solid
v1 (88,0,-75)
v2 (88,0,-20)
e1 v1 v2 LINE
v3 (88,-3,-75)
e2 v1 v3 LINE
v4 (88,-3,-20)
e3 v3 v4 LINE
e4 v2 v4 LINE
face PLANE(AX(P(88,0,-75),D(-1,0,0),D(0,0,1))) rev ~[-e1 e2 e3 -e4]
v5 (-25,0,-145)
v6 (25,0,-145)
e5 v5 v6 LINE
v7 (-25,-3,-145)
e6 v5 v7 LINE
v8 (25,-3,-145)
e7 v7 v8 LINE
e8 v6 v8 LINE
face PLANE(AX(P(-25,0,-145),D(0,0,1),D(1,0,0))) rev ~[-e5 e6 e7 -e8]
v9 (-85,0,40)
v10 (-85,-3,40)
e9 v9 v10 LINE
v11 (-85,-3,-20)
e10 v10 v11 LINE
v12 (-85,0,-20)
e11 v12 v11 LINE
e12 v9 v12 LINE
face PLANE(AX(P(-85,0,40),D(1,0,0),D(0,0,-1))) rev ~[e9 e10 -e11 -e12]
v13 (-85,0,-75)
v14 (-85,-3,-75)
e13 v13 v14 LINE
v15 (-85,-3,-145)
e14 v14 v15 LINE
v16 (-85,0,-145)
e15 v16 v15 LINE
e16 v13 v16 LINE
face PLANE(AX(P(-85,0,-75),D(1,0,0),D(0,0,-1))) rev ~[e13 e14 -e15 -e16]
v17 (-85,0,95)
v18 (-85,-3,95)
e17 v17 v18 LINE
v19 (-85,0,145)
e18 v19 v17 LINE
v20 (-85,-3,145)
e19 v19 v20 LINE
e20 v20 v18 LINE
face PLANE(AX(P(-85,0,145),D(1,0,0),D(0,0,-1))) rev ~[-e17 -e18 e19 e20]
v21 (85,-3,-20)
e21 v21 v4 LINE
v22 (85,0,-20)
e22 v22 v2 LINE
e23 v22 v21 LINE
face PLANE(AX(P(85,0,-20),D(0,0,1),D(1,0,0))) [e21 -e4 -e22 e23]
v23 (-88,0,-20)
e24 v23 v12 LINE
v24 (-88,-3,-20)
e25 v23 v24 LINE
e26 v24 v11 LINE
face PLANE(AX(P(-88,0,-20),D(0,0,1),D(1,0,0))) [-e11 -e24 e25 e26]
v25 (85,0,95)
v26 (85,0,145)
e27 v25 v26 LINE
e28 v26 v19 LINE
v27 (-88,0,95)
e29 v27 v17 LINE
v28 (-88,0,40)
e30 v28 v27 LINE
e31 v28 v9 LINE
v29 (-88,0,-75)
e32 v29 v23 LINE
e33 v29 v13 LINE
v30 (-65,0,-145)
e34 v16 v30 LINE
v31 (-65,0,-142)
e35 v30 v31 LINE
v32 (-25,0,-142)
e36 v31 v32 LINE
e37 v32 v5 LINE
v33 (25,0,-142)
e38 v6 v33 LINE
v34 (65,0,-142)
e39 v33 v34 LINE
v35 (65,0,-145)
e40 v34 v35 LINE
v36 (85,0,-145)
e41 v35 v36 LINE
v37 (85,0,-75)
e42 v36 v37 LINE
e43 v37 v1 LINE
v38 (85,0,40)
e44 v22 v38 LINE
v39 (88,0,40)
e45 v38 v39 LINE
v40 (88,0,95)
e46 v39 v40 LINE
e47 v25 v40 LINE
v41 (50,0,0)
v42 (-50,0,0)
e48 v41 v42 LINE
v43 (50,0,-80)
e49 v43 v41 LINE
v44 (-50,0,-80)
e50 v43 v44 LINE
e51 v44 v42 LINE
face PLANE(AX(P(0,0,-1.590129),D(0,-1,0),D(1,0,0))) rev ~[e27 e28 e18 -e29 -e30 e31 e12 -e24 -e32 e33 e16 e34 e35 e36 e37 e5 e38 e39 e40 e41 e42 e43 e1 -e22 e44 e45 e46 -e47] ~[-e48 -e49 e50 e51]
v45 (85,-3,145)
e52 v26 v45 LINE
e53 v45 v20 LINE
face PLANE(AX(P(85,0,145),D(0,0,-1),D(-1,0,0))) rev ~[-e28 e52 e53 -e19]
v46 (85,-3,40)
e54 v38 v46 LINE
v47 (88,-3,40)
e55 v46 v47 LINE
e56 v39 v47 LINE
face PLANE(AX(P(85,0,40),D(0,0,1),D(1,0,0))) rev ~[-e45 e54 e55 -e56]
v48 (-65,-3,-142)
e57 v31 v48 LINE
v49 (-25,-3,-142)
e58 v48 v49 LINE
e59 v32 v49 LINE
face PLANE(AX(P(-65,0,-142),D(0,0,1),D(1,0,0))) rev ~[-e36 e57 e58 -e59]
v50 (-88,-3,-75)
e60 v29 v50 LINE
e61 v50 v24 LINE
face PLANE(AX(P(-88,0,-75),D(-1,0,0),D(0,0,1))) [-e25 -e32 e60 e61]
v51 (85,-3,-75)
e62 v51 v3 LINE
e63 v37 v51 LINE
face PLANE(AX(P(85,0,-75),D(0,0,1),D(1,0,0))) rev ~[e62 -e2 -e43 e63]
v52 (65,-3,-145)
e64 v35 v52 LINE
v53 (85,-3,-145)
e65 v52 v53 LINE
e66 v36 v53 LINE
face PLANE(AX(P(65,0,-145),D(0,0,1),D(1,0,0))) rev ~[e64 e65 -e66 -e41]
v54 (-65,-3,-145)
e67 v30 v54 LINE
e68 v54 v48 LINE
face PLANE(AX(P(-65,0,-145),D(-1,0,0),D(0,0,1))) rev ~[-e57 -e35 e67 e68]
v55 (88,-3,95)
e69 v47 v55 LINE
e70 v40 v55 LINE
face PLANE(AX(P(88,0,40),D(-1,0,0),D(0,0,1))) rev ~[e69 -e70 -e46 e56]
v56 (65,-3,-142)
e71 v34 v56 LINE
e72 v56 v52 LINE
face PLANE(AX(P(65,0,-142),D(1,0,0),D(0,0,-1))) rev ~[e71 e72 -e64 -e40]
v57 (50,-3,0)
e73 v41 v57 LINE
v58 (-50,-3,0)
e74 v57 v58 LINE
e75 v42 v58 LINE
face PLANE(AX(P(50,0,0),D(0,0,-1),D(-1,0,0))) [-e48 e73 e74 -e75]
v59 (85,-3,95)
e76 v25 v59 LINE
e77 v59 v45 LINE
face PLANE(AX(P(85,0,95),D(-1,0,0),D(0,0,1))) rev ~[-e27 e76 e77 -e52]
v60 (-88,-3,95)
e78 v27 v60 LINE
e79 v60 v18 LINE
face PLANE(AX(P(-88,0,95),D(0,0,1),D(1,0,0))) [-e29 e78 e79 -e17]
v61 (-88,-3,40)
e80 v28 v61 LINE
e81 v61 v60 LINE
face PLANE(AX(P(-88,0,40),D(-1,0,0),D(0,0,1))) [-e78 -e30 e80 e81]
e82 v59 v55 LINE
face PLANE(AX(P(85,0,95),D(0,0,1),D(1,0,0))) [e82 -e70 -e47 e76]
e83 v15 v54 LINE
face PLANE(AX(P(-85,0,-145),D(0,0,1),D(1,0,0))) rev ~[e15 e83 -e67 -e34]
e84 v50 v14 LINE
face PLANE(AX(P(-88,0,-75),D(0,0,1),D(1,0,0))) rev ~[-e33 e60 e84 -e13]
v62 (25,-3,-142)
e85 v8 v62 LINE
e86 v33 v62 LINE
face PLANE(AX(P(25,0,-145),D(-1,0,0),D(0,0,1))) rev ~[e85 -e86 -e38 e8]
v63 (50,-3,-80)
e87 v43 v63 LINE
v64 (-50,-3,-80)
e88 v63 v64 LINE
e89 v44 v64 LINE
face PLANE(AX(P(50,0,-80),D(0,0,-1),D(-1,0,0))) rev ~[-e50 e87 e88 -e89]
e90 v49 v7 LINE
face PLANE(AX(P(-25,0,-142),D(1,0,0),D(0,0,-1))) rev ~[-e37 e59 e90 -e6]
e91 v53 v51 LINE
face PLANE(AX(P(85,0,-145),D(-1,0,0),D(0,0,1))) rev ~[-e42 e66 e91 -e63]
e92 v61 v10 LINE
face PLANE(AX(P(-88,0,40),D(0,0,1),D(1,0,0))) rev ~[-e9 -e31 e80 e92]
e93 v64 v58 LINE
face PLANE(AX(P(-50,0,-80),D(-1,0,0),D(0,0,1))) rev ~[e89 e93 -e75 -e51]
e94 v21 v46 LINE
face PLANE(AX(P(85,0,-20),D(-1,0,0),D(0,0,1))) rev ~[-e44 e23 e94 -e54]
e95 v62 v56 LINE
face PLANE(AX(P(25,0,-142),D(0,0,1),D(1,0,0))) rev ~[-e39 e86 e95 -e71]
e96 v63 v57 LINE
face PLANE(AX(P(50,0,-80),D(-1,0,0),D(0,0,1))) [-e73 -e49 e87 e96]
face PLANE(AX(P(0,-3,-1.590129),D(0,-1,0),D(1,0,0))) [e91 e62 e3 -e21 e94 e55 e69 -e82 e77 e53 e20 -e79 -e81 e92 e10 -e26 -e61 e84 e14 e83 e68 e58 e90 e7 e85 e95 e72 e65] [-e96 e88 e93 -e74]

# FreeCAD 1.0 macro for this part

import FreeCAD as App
import Part
import Sketcher
from FreeCAD import Vector
Q = App.Units.Quantity

doc = App.newDocument("Part")
body = doc.addObject("PartDesign::Body", "Body")

sketch1 = body.newObject("Sketcher::SketchObject", "Sketch")
sketch1.AttachmentSupport = (doc.getObject("XZ_Plane"), [""])
sketch1.MapMode = "FlatFace"
sketch1.addGeometry([
    Part.LineSegment(Vector(85, 145, 0), Vector(-85, 145, 0)),
    Part.LineSegment(Vector(-85, 145, 0), Vector(-85, 95, 0)),
    Part.LineSegment(Vector(-85, 95, 0), Vector(-88, 95, 0)),
    Part.LineSegment(Vector(-88, 95, 0), Vector(-88, 40, 0)),
    Part.LineSegment(Vector(-88, 40, 0), Vector(-85, 40, 0)),
    Part.LineSegment(Vector(-85, 40, 0), Vector(-85, -20, 0)),
    Part.LineSegment(Vector(-85, -20, 0), Vector(-88, -20, 0)),
    Part.LineSegment(Vector(-88, -20, 0), Vector(-88, -75, 0)),
    Part.LineSegment(Vector(-88, -75, 0), Vector(-85, -75, 0)),
    Part.LineSegment(Vector(-85, -75, 0), Vector(-85, -145, 0)),
    Part.LineSegment(Vector(-85, -145, 0), Vector(-65, -145, 0)),
    Part.LineSegment(Vector(-65, -145, 0), Vector(-65, -142, 0)),
    Part.LineSegment(Vector(-65, -142, 0), Vector(-25, -142, 0)),
    Part.LineSegment(Vector(-25, -142, 0), Vector(-25, -145, 0)),
    Part.LineSegment(Vector(-25, -145, 0), Vector(25, -145, 0)),
    Part.LineSegment(Vector(25, -145, 0), Vector(25, -142, 0)),
    Part.LineSegment(Vector(25, -142, 0), Vector(65, -142, 0)),
    Part.LineSegment(Vector(65, -142, 0), Vector(65, -145, 0)),
    Part.LineSegment(Vector(65, -145, 0), Vector(85, -145, 0)),
    Part.LineSegment(Vector(85, -145, 0), Vector(85, -75, 0)),
    Part.LineSegment(Vector(85, -75, 0), Vector(88, -75, 0)),
    Part.LineSegment(Vector(88, -75, 0), Vector(88, -20, 0)),
    Part.LineSegment(Vector(88, -20, 0), Vector(85, -20, 0)),
    Part.LineSegment(Vector(85, -20, 0), Vector(85, 40, 0)),
    Part.LineSegment(Vector(85, 40, 0), Vector(88, 40, 0)),
    Part.LineSegment(Vector(88, 40, 0), Vector(88, 95, 0)),
    Part.LineSegment(Vector(88, 95, 0), Vector(85, 95, 0)),
    Part.LineSegment(Vector(85, 95, 0), Vector(85, 145, 0)),
], False)
sketch1.addConstraint([
    Sketcher.Constraint("Coincident", 0, 2, 1, 1),
    Sketcher.Constraint("Coincident", 1, 2, 2, 1),
    Sketcher.Constraint("Coincident", 2, 2, 3, 1),
    Sketcher.Constraint("Coincident", 3, 2, 4, 1),
    Sketcher.Constraint("Coincident", 4, 2, 5, 1),
    Sketcher.Constraint("Coincident", 5, 2, 6, 1),
    Sketcher.Constraint("Coincident", 6, 2, 7, 1),
    Sketcher.Constraint("Coincident", 7, 2, 8, 1),
    Sketcher.Constraint("Coincident", 8, 2, 9, 1),
    Sketcher.Constraint("Coincident", 9, 2, 10, 1),
    Sketcher.Constraint("Coincident", 10, 2, 11, 1),
    Sketcher.Constraint("Coincident", 11, 2, 12, 1),
    Sketcher.Constraint("Coincident", 12, 2, 13, 1),
    Sketcher.Constraint("Coincident", 13, 2, 14, 1),
    Sketcher.Constraint("Coincident", 14, 2, 15, 1),
    Sketcher.Constraint("Coincident", 15, 2, 16, 1),
    Sketcher.Constraint("Coincident", 16, 2, 17, 1),
    Sketcher.Constraint("Coincident", 17, 2, 18, 1),
    Sketcher.Constraint("Coincident", 18, 2, 19, 1),
    Sketcher.Constraint("Coincident", 19, 2, 20, 1),
    Sketcher.Constraint("Coincident", 20, 2, 21, 1),
    Sketcher.Constraint("Coincident", 21, 2, 22, 1),
    Sketcher.Constraint("Coincident", 22, 2, 23, 1),
    Sketcher.Constraint("Coincident", 23, 2, 24, 1),
    Sketcher.Constraint("Coincident", 24, 2, 25, 1),
    Sketcher.Constraint("Coincident", 25, 2, 26, 1),
    Sketcher.Constraint("Coincident", 26, 2, 27, 1),
    Sketcher.Constraint("Coincident", 27, 2, 0, 1),
    Sketcher.Constraint("Horizontal", 0),
    Sketcher.Constraint("Vertical", 1),
    Sketcher.Constraint("Horizontal", 2),
    Sketcher.Constraint("Vertical", 3),
    Sketcher.Constraint("Horizontal", 4),
    Sketcher.Constraint("Vertical", 5),
    Sketcher.Constraint("Horizontal", 6),
    Sketcher.Constraint("Vertical", 7),
    Sketcher.Constraint("Horizontal", 8),
    Sketcher.Constraint("Vertical", 9),
    Sketcher.Constraint("Horizontal", 10),
    Sketcher.Constraint("Vertical", 11),
    Sketcher.Constraint("Horizontal", 12),
    Sketcher.Constraint("Vertical", 13),
    Sketcher.Constraint("Horizontal", 14),
    Sketcher.Constraint("Vertical", 15),
    Sketcher.Constraint("Horizontal", 16),
    Sketcher.Constraint("Vertical", 17),
    Sketcher.Constraint("Horizontal", 18),
    Sketcher.Constraint("Vertical", 19),
    Sketcher.Constraint("Horizontal", 20),
    Sketcher.Constraint("Vertical", 21),
    Sketcher.Constraint("Horizontal", 22),
    Sketcher.Constraint("Vertical", 23),
    Sketcher.Constraint("Horizontal", 24),
    Sketcher.Constraint("Vertical", 25),
    Sketcher.Constraint("Horizontal", 26),
    Sketcher.Constraint("Vertical", 27),
    Sketcher.Constraint("Symmetric", 0, 2, 18, 2, -1, 1),
    Sketcher.Constraint("Symmetric", 9, 2, 27, 2, -1, 1),
    Sketcher.Constraint("Symmetric", 12, 2, 15, 2, -2),
    Sketcher.Constraint("Symmetric", 8, 2, 19, 2, -2),
    Sketcher.Constraint("Symmetric", 6, 2, 21, 2, -2),
    Sketcher.Constraint("Symmetric", 4, 2, 23, 2, -2),
    Sketcher.Constraint("Symmetric", 2, 2, 25, 2, -2),
    Sketcher.Constraint("Horizontal", 10, 2, 13, 2),
    Sketcher.Constraint("Vertical", 1, 2, 4, 2),
    Sketcher.Constraint("Vertical", 3, 2, 6, 2),
    Sketcher.Constraint("Equal", 12, 16),
    Sketcher.Constraint("Equal", 14, 1),
    Sketcher.Constraint("Equal", 3, 7),
    Sketcher.Constraint("Equal", 26, 11),
    Sketcher.Constraint("DistanceX", 0, 2, 0, 1, Q("170 mm")),
    Sketcher.Constraint("DistanceX", 2, 2, 2, 1, Q("3 mm")),
    Sketcher.Constraint("DistanceX", 10, 1, 10, 2, Q("20 mm")),
    Sketcher.Constraint("DistanceX", 12, 1, 12, 2, Q("40 mm")),
    Sketcher.Constraint("DistanceY", 3, 2, 3, 1, Q("55 mm")),
    Sketcher.Constraint("DistanceY", 5, 2, 5, 1, Q("60 mm")),
    Sketcher.Constraint("DistanceY", 9, 2, 9, 1, Q("70 mm")),
])
pad1 = body.newObject("PartDesign::Pad", "Pad")
pad1.Profile = sketch1
pad1.Length = 3

sketch2 = body.newObject("Sketcher::SketchObject", "Sketch001")
sketch2.AttachmentSupport = (doc.getObject("XZ_Plane"), [""])
sketch2.MapMode = "FlatFace"
sketch2.addGeometry([
    Part.LineSegment(Vector(50, 0, 0), Vector(50, -80, 0)),
    Part.LineSegment(Vector(50, -80, 0), Vector(-50, -80, 0)),
    Part.LineSegment(Vector(-50, -80, 0), Vector(-50, 0, 0)),
    Part.LineSegment(Vector(-50, 0, 0), Vector(50, 0, 0)),
], False)
sketch2.addConstraint([
    Sketcher.Constraint("Coincident", 0, 2, 1, 1),
    Sketcher.Constraint("Coincident", 1, 2, 2, 1),
    Sketcher.Constraint("Coincident", 2, 2, 3, 1),
    Sketcher.Constraint("Coincident", 3, 2, 0, 1),
    Sketcher.Constraint("Vertical", 0),
    Sketcher.Constraint("Horizontal", 1),
    Sketcher.Constraint("Vertical", 2),
    Sketcher.Constraint("Horizontal", 3),
    Sketcher.Constraint("Symmetric", 2, 2, 3, 2, -1, 1),
    Sketcher.Constraint("DistanceX", 1, 2, 1, 1, Q("100 mm")),
    Sketcher.Constraint("DistanceY", 0, 2, 0, 1, Q("80 mm")),
])
pocket1 = body.newObject("PartDesign::Pocket", "Pocket")
pocket1.Profile = sketch2
pocket1.Type = "ThroughAll"
pocket1.Reversed = True

doc.recompute()
